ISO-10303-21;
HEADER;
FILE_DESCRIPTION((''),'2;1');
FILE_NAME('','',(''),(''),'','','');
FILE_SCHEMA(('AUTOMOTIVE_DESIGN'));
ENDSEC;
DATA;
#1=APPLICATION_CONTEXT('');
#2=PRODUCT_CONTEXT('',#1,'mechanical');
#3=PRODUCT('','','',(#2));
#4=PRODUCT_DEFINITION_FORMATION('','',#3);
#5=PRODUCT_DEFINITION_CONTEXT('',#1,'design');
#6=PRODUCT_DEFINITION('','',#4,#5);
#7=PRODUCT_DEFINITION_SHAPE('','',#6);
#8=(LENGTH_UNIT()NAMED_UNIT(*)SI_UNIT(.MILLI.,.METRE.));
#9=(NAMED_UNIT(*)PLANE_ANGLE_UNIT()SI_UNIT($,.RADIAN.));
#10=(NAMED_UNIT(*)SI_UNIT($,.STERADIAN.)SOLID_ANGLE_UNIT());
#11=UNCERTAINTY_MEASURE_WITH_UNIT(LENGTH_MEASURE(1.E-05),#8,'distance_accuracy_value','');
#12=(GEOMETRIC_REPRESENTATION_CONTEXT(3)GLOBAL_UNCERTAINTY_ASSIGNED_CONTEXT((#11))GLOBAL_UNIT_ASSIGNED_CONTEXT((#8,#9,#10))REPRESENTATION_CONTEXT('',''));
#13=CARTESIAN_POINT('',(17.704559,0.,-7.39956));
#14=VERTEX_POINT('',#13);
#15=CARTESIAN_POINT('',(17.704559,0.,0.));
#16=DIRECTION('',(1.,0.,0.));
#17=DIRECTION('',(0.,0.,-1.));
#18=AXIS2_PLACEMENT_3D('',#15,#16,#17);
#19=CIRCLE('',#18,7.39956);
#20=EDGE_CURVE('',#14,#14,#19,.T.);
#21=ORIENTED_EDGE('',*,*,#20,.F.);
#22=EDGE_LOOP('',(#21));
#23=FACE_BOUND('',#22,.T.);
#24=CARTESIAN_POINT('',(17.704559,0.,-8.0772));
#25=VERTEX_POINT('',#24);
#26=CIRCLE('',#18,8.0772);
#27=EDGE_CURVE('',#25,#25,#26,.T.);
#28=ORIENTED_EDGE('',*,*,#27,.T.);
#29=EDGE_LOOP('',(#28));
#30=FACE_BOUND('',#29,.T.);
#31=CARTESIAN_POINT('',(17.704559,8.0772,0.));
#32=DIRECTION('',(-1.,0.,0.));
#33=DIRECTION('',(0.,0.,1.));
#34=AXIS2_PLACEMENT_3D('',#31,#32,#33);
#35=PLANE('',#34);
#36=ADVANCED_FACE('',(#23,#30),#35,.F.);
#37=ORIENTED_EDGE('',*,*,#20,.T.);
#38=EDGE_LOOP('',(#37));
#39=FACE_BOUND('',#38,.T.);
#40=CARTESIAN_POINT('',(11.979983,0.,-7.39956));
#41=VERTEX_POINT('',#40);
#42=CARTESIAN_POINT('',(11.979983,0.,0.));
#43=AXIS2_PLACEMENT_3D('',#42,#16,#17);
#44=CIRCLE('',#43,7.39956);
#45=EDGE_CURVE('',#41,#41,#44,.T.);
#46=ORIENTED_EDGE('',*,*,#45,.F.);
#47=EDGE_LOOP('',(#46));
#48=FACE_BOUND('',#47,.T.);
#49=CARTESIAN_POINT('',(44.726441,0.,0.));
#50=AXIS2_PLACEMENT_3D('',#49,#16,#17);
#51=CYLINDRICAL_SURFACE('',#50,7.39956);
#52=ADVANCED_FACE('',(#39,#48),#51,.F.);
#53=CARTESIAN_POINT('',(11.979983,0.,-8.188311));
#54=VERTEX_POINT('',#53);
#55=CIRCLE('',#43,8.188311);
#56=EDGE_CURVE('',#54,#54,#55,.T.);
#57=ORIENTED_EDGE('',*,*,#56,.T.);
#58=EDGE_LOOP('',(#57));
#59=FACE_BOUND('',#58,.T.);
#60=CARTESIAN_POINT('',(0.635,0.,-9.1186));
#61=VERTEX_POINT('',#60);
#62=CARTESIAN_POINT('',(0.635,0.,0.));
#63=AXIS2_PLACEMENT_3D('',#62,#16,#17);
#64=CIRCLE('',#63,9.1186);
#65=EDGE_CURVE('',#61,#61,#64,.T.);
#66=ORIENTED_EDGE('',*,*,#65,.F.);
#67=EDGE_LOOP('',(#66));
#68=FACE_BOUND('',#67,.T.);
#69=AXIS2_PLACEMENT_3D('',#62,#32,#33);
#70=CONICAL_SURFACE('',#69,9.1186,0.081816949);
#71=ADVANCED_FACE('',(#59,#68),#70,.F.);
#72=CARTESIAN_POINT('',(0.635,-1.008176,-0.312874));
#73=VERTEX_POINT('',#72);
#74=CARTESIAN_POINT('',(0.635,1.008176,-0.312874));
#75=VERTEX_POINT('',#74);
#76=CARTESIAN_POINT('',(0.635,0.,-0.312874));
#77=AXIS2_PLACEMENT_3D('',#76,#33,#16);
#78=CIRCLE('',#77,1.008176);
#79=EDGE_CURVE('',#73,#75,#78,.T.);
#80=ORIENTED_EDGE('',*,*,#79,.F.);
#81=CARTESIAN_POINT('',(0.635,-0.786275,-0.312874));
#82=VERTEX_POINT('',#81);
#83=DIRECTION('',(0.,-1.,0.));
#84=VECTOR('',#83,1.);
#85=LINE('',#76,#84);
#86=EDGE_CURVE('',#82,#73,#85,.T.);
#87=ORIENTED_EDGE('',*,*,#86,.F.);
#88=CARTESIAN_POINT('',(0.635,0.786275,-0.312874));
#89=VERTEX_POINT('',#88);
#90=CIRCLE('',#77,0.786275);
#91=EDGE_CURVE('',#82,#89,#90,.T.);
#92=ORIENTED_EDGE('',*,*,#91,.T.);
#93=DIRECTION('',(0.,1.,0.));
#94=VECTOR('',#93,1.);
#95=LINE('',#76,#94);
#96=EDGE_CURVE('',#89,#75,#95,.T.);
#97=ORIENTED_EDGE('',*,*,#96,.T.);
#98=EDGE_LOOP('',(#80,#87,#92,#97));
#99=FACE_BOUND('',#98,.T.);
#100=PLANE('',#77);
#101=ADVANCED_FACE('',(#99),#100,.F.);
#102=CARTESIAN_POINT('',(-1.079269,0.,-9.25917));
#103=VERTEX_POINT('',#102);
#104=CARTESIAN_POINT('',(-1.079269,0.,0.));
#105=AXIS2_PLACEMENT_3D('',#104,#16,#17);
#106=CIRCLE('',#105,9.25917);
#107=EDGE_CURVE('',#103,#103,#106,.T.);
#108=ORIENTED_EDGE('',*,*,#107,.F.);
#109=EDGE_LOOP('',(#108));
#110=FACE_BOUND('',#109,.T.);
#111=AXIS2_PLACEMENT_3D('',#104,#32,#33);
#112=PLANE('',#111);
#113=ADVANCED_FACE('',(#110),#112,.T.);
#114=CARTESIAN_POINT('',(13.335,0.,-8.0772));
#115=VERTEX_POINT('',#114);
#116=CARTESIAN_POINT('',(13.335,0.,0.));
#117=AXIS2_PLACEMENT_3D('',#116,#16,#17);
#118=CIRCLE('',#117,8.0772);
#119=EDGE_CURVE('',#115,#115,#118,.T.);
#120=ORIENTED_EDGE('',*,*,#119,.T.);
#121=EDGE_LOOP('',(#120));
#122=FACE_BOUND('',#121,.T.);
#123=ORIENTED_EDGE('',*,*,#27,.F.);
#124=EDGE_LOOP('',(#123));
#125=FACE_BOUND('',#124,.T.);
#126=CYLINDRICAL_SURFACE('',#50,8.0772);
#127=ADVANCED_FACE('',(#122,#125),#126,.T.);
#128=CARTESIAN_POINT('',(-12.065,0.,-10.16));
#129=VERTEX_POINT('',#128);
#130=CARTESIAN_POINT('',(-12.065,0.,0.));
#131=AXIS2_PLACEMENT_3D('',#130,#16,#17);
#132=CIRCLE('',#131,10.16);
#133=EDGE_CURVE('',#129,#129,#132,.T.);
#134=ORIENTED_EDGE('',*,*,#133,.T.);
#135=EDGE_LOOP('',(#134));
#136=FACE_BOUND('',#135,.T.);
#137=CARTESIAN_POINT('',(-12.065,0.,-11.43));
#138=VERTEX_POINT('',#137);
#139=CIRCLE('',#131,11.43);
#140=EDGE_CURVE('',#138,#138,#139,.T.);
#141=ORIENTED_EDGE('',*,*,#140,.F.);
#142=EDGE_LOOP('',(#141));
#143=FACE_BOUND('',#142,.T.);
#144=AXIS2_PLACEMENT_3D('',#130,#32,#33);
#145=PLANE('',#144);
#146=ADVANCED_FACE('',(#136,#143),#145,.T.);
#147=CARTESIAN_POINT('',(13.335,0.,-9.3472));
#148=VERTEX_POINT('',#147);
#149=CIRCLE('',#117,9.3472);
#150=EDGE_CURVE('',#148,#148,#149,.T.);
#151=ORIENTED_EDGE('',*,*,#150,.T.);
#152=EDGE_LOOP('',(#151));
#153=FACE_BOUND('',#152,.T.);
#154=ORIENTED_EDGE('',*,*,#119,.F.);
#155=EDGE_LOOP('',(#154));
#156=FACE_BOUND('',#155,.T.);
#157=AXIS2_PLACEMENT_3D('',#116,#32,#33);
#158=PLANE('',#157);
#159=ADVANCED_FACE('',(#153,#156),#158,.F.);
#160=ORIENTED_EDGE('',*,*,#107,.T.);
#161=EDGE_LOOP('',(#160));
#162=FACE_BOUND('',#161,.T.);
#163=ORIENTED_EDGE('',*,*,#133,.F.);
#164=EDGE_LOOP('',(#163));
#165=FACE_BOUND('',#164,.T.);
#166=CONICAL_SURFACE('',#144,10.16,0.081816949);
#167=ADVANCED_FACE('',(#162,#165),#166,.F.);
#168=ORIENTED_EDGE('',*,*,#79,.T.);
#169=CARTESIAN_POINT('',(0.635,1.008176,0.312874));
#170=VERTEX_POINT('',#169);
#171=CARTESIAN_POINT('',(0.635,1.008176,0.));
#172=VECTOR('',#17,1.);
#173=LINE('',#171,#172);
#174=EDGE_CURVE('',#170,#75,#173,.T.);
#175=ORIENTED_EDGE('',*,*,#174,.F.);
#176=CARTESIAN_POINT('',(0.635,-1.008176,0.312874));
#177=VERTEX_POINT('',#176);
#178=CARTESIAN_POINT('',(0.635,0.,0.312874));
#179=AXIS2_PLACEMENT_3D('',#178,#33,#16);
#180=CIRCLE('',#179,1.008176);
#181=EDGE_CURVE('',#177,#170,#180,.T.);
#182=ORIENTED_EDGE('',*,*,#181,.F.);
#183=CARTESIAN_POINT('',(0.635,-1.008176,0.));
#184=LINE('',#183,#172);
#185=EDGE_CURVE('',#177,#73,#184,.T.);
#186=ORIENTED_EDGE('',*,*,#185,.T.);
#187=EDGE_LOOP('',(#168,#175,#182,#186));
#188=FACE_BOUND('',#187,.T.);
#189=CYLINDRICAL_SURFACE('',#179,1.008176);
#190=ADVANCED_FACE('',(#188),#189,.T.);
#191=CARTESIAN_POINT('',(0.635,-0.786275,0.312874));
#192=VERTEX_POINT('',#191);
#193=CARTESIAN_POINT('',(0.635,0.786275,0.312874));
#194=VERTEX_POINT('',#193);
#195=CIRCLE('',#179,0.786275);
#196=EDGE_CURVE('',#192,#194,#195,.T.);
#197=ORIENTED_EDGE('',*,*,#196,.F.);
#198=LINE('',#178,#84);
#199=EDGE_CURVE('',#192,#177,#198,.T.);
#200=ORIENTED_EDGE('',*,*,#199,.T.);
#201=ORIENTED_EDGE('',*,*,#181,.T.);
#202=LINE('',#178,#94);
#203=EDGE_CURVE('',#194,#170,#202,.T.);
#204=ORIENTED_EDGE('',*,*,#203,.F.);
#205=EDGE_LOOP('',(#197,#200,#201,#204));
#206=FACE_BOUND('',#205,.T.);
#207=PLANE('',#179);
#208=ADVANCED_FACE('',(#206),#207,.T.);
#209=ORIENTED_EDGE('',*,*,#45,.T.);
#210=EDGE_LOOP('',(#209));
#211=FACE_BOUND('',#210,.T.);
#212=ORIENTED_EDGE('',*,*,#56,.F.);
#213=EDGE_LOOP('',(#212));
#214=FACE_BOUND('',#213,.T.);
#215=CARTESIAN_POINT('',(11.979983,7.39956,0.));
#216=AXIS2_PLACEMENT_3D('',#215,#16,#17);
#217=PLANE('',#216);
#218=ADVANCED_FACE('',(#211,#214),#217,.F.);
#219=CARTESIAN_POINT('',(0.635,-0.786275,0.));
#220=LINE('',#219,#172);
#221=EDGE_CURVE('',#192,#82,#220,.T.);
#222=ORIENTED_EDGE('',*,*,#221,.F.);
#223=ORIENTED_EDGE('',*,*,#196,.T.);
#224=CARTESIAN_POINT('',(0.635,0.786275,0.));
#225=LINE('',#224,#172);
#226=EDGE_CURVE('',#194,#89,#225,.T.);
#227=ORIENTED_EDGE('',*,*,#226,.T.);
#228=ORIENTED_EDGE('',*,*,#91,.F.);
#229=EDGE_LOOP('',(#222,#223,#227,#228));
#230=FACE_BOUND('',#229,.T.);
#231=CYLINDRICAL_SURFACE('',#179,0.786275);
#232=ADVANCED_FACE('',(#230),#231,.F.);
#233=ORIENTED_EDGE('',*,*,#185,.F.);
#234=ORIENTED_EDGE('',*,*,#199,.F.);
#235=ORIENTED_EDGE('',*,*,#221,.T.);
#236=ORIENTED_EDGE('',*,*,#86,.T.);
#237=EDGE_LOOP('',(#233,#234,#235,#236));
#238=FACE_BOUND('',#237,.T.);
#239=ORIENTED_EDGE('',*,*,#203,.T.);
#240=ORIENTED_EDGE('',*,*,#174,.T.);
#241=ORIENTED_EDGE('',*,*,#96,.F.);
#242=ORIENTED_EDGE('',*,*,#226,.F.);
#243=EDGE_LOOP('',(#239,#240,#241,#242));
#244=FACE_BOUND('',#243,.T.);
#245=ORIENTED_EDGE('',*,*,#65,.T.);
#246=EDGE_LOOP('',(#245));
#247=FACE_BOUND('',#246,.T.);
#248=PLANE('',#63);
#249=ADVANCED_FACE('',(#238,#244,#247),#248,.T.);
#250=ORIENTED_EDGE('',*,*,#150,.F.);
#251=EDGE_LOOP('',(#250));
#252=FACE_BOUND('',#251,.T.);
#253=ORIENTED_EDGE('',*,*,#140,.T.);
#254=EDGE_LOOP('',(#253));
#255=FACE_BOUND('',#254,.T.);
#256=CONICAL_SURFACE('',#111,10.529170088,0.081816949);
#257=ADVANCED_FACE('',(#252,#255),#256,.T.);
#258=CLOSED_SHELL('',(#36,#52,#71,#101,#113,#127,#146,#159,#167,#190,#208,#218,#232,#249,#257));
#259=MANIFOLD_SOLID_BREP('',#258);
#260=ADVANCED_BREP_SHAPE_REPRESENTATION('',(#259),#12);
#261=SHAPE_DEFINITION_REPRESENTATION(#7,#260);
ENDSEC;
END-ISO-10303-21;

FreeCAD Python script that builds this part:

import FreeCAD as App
import Part
import Sketcher

V = App.Vector
Q = App.Units.Quantity


def add_polygon(sketch, points):
    """Adds a closed chain of lines whose ends are joined by coincident constraints."""
    first, n = sketch.GeometryCount, len(points)
    for a, b in zip(points, points[1:] + points[:1]):
        sketch.addGeometry(Part.LineSegment(App.Vector(*a, 0), App.Vector(*b, 0)), False)
    for i in range(n):
        sketch.addConstraint(Sketcher.Constraint("Coincident", first + i, 2, first + (i + 1) % n, 1))

doc = App.newDocument("Part")
params = doc.addObject("Spreadsheet::Sheet", "Params")
for row, (alias, value) in enumerate([
    ("sketch1_height", "0.05 in"),
    ("sketch1_height2", "0.359 in"),
    ("revolution_angle", "360 deg"),
    ("revolution2_angle", "180 deg"),
], start=1):
    params.set(f"A{row}", alias)
    params.set(f"B{row}", "=" + value)
    params.setAlias(f"B{row}", alias)

body = doc.addObject("PartDesign::Body", "Body")

sketch1 = body.newObject("Sketcher::SketchObject", "Sketch")
sketch1.AttachmentSupport = (doc.getObject("XY_Plane"), [""])
sketch1.MapMode = "FlatFace"
add_polygon(sketch1, [(-12.1, 11.4), (-12.1, 10.2), (-1.1, 9.3), (-1.1, 0), (0.6, 0), (0.6, 9.1), (12, 8.2), (12, 7.4), (17.7, 7.4), (17.7, 8.1), (13.3, 8.1), (13.3, 9.3)])
sketch1.addConstraint([
    Sketcher.Constraint("Vertical", 0),
    Sketcher.Constraint("Vertical", 2),
    Sketcher.Constraint("Horizontal", 3),
    Sketcher.Constraint("Vertical", 4),
    Sketcher.Constraint("Vertical", 6),
    Sketcher.Constraint("Horizontal", 7),
    Sketcher.Constraint("Vertical", 8),
    Sketcher.Constraint("Horizontal", 9),
    Sketcher.Constraint("Vertical", 10),
    Sketcher.Constraint("PointOnObject", 2, 2, -1),
    Sketcher.Constraint("Parallel", 1, 5),
    Sketcher.Constraint("Parallel", 5, 11),
    Sketcher.Constraint("Equal", 0, 10),
    Sketcher.Constraint("DistanceY", 0, 2, 0, 1, Q("0.05 in")),
    Sketcher.Constraint("DistanceY", -1, 1, 0, 2, Q("0.4 in")),
    Sketcher.Constraint("DistanceX", 0, 2, 3, 2, Q("0.5 in")),
    Sketcher.Constraint("DistanceX", 4, 2, 9, 2, Q("0.5 in")),
    Sketcher.Constraint("DistanceY", 4, 1, 4, 2, Q("0.359 in")),
    Sketcher.Constraint("DistanceX", 0, 2, -1, 1, Q("0.475 in")),
    Sketcher.Constraint("DistanceY", -1, 1, 8, 2, Q("0.318 in")),
    Sketcher.Constraint("DistanceX", 3, 1, 3, 2, 1.714269),
    Sketcher.Constraint("DistanceX", 9, 2, 9, 1, 4.369559),
    Sketcher.Constraint("DistanceY", 6, 2, 6, 1, 0.788752),
    Sketcher.Constraint("DistanceY", 8, 1, 8, 2, 0.67764),
])
sketch1.setExpression("Constraints[25]", "Params.sketch1_height")
sketch1.setExpression("Constraints[29]", "Params.sketch1_height2")
revolution = body.newObject("PartDesign::Revolution", "Revolution")
revolution.Profile = sketch1
revolution.ReferenceAxis = (sketch1, ["H_Axis"])
revolution.setExpression("Angle", "Params.revolution_angle")

sketch2 = body.newObject("Sketcher::SketchObject", "Sketch001")
sketch2.AttachmentSupport = (doc.getObject("YZ_Plane"), [""])
sketch2.MapMode = "FlatFace"
sketch2.AttachmentOffset = App.Placement(V(0, 0, 0.025 * 25.4), App.Rotation())
add_polygon(sketch2, [(1.01, 0.31), (0.79, 0.31), (0.79, -0.31), (1.01, -0.31)])
sketch2.addConstraint([
    Sketcher.Constraint("Horizontal", 0),
    Sketcher.Constraint("Vertical", 1),
    Sketcher.Constraint("Horizontal", 2),
    Sketcher.Constraint("Vertical", 3),
    Sketcher.Constraint("DistanceX", 0, 2, 0, 1, 0.221901),
    Sketcher.Constraint("DistanceY", 1, 2, 1, 1, 0.625748),
    Sketcher.Constraint("DistanceX", -1, 1, 0, 2, 0.786275),
    Sketcher.Constraint("DistanceY", -1, 1, 0, 2, 0.312874),
])
revolution2 = body.newObject("PartDesign::Revolution", "Revolution001")
revolution2.Profile = sketch2
revolution2.ReferenceAxis = (sketch2, ["V_Axis"])
revolution2.setExpression("Angle", "Params.revolution2_angle")
revolution2.Reversed = True

doc.recompute()
